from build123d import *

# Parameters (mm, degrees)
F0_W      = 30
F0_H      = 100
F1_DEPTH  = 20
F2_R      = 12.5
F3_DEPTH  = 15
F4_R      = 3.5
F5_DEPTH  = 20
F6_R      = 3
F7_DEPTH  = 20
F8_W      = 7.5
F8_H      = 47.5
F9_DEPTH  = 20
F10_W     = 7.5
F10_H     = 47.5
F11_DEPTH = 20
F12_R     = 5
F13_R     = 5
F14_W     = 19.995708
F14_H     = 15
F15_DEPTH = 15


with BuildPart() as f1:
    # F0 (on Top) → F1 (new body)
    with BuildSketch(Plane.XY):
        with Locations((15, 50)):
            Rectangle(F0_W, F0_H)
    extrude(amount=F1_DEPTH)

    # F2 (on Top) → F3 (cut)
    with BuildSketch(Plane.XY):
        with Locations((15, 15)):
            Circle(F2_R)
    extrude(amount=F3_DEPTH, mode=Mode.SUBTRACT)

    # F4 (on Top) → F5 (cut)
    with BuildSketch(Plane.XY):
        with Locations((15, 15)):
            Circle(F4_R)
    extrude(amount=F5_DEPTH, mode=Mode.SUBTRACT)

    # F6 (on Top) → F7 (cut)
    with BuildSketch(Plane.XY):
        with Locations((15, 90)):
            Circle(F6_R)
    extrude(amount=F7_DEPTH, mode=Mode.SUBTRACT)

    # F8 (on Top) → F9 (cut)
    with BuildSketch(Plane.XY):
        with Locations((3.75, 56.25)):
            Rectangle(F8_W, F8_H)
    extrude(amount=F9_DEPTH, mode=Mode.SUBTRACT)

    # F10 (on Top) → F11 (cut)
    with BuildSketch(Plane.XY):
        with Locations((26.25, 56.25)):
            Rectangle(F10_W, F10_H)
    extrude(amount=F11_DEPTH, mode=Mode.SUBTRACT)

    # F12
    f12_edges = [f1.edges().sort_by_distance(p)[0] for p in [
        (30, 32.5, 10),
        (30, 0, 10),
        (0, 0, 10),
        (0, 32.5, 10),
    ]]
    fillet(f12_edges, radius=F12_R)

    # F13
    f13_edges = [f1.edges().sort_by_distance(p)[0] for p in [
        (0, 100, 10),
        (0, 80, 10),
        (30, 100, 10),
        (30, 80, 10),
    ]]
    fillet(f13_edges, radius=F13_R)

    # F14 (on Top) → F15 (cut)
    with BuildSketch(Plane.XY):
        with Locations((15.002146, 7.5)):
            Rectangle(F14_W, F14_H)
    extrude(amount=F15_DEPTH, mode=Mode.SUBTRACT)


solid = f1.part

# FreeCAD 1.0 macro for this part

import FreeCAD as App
import Part
import Sketcher


def edges_at(feature, points):
    """Names of the edges that pass closest to the given points."""
    edges = feature.Shape.Edges
    near = lambda p: min(range(len(edges)), key=lambda i: edges[i].distToShape(Part.Vertex(*p))[0])
    return sorted({f"Edge{near(p) + 1}" for p in points})

doc = App.newDocument("Part")
body = doc.addObject("PartDesign::Body", "Body")

# Sketch on XY plane
sketch1 = body.newObject("Sketcher::SketchObject", "Sketch")
sketch1.AttachmentSupport = (doc.getObject("XY_Plane"), [""])
sketch1.MapMode = "FlatFace"
sketch1.addGeometry([
    Part.LineSegment(App.Vector(0, 100, 0), App.Vector(0, 0, 0)),
    Part.LineSegment(App.Vector(0, 0, 0), App.Vector(30, 0, 0)),
    Part.LineSegment(App.Vector(30, 0, 0), App.Vector(30, 100, 0)),
    Part.LineSegment(App.Vector(30, 100, 0), App.Vector(0, 100, 0)),
], False)
sketch1.addConstraint([
    Sketcher.Constraint("Coincident", 0, 2, 1, 1),
    Sketcher.Constraint("Coincident", 1, 2, 2, 1),
    Sketcher.Constraint("Coincident", 2, 2, 3, 1),
    Sketcher.Constraint("Coincident", 3, 2, 0, 1),
    Sketcher.Constraint("Vertical", 0),
    Sketcher.Constraint("Horizontal", 1),
    Sketcher.Constraint("Vertical", 2),
    Sketcher.Constraint("Horizontal", 3),
    Sketcher.Constraint("Coincident", 0, 2, -1, 1),
    Sketcher.Constraint("DistanceX", 1, 1, 1, 2, 30.0),
    Sketcher.Constraint("DistanceY", 0, 2, 0, 1, 100.0),
])
pad1 = body.newObject("PartDesign::Pad", "Pad")
pad1.Profile = sketch1
pad1.Length = 20

# Sketch on XY plane
sketch2 = body.newObject("Sketcher::SketchObject", "Sketch001")
sketch2.AttachmentSupport = (doc.getObject("XY_Plane"), [""])
sketch2.MapMode = "FlatFace"
sketch2.addGeometry(Part.Circle(App.Vector(15, 15, 0), App.Vector(0, 0, 1), 12), False)
sketch2.addConstraint([
    Sketcher.Constraint("Diameter", 0, 25.0),
    Sketcher.Constraint("DistanceX", -1, 1, 0, 3, 15.0),
    Sketcher.Constraint("DistanceY", -1, 1, 0, 3, 15.0),
])
pocket1 = body.newObject("PartDesign::Pocket", "Pocket")
pocket1.Profile = sketch2
pocket1.Length = 15
pocket1.Reversed = True

# Sketch on XY plane
sketch3 = body.newObject("Sketcher::SketchObject", "Sketch002")
sketch3.AttachmentSupport = (doc.getObject("XY_Plane"), [""])
sketch3.MapMode = "FlatFace"
sketch3.addGeometry(Part.Circle(App.Vector(15, 15, 0), App.Vector(0, 0, 1), 3.5), False)
sketch3.addConstraint([
    Sketcher.Constraint("Diameter", 0, 7.0),
    Sketcher.Constraint("DistanceX", -1, 1, 0, 3, 15.0),
    Sketcher.Constraint("DistanceY", -1, 1, 0, 3, 15.0),
])
pocket2 = body.newObject("PartDesign::Pocket", "Pocket001")
pocket2.Profile = sketch3
pocket2.Length = 20
pocket2.Reversed = True

# Sketch on XY plane
sketch4 = body.newObject("Sketcher::SketchObject", "Sketch003")
sketch4.AttachmentSupport = (doc.getObject("XY_Plane"), [""])
sketch4.MapMode = "FlatFace"
sketch4.addGeometry(Part.Circle(App.Vector(15, 90, 0), App.Vector(0, 0, 1), 3), False)
sketch4.addConstraint([
    Sketcher.Constraint("Diameter", 0, 6.0),
    Sketcher.Constraint("DistanceX", -1, 1, 0, 3, 15.0),
    Sketcher.Constraint("DistanceY", -1, 1, 0, 3, 90.0),
])
pocket3 = body.newObject("PartDesign::Pocket", "Pocket002")
pocket3.Profile = sketch4
pocket3.Length = 20
pocket3.Reversed = True

# Sketch on XY plane
sketch5 = body.newObject("Sketcher::SketchObject", "Sketch004")
sketch5.AttachmentSupport = (doc.getObject("XY_Plane"), [""])
sketch5.MapMode = "FlatFace"
sketch5.addGeometry([
    Part.LineSegment(App.Vector(0, 80, 0), App.Vector(0, 32, 0)),
    Part.LineSegment(App.Vector(0, 32, 0), App.Vector(8, 32, 0)),
    Part.LineSegment(App.Vector(8, 32, 0), App.Vector(8, 80, 0)),
    Part.LineSegment(App.Vector(8, 80, 0), App.Vector(0, 80, 0)),
], False)
sketch5.addConstraint([
    Sketcher.Constraint("Coincident", 0, 2, 1, 1),
    Sketcher.Constraint("Coincident", 1, 2, 2, 1),
    Sketcher.Constraint("Coincident", 2, 2, 3, 1),
    Sketcher.Constraint("Coincident", 3, 2, 0, 1),
    Sketcher.Constraint("Vertical", 0),
    Sketcher.Constraint("Horizontal", 1),
    Sketcher.Constraint("Vertical", 2),
    Sketcher.Constraint("Horizontal", 3),
    Sketcher.Constraint("PointOnObject", 0, 2, -2),
    Sketcher.Constraint("DistanceX", 1, 1, 1, 2, 7.5),
    Sketcher.Constraint("DistanceY", 0, 2, 0, 1, 47.5),
    Sketcher.Constraint("DistanceY", -1, 1, 2, 2, 80.0),
])
pocket4 = body.newObject("PartDesign::Pocket", "Pocket003")
pocket4.Profile = sketch5
pocket4.Length = 20
pocket4.Reversed = True

# Sketch on XY plane
sketch6 = body.newObject("Sketcher::SketchObject", "Sketch005")
sketch6.AttachmentSupport = (doc.getObject("XY_Plane"), [""])
sketch6.MapMode = "FlatFace"
sketch6.addGeometry([
    Part.LineSegment(App.Vector(22, 80, 0), App.Vector(22, 32, 0)),
    Part.LineSegment(App.Vector(22, 32, 0), App.Vector(30, 32, 0)),
    Part.LineSegment(App.Vector(30, 32, 0), App.Vector(30, 80, 0)),
    Part.LineSegment(App.Vector(30, 80, 0), App.Vector(22, 80, 0)),
], False)
sketch6.addConstraint([
    Sketcher.Constraint("Coincident", 0, 2, 1, 1),
    Sketcher.Constraint("Coincident", 1, 2, 2, 1),
    Sketcher.Constraint("Coincident", 2, 2, 3, 1),
    Sketcher.Constraint("Coincident", 3, 2, 0, 1),
    Sketcher.Constraint("Vertical", 0),
    Sketcher.Constraint("Horizontal", 1),
    Sketcher.Constraint("Vertical", 2),
    Sketcher.Constraint("Horizontal", 3),
    Sketcher.Constraint("DistanceX", 1, 1, 1, 2, 7.5),
    Sketcher.Constraint("DistanceY", 0, 2, 0, 1, 47.5),
    Sketcher.Constraint("DistanceX", -1, 1, 1, 2, 30.0),
    Sketcher.Constraint("DistanceY", -1, 1, 2, 2, 80.0),
])
pocket5 = body.newObject("PartDesign::Pocket", "Pocket004")
pocket5.Profile = sketch6
pocket5.Length = 20
pocket5.Reversed = True
doc.recompute()

fillet = body.newObject("PartDesign::Fillet", "Fillet")
fillet.Base = (pocket5, edges_at(pocket5, [
    (30, 32.5, 10),
    (30, 0, 10),
    (0, 0, 10),
    (0, 32.5, 10),
]))
fillet.Radius = 5
doc.recompute()

fillet2 = body.newObject("PartDesign::Fillet", "Fillet001")
fillet2.Base = (fillet, edges_at(fillet, [
    (0, 100, 10),
    (0, 80, 10),
    (30, 100, 10),
    (30, 80, 10),
]))
fillet2.Radius = 5

# Sketch on XY plane
sketch7 = body.newObject("Sketcher::SketchObject", "Sketch006")
sketch7.AttachmentSupport = (doc.getObject("XY_Plane"), [""])
sketch7.MapMode = "FlatFace"
sketch7.addGeometry([
    Part.LineSegment(App.Vector(5, 15, 0), App.Vector(5, 0, 0)),
    Part.LineSegment(App.Vector(5, 0, 0), App.Vector(25, 0, 0)),
    Part.LineSegment(App.Vector(25, 0, 0), App.Vector(25, 15, 0)),
    Part.LineSegment(App.Vector(25, 15, 0), App.Vector(5, 15, 0)),
], False)
sketch7.addConstraint([
    Sketcher.Constraint("Coincident", 0, 2, 1, 1),
    Sketcher.Constraint("Coincident", 1, 2, 2, 1),
    Sketcher.Constraint("Coincident", 2, 2, 3, 1),
    Sketcher.Constraint("Coincident", 3, 2, 0, 1),
    Sketcher.Constraint("Vertical", 0),
    Sketcher.Constraint("Horizontal", 1),
    Sketcher.Constraint("Vertical", 2),
    Sketcher.Constraint("Horizontal", 3),
    Sketcher.Constraint("PointOnObject", 0, 2, -1),
    Sketcher.Constraint("DistanceY", 0, 2, 0, 1, 15.0),
    Sketcher.Constraint("DistanceX", -1, 1, 1, 2, 25.0),
    Sketcher.Constraint("DistanceX", 1, 1, 1, 2, 19.995708),
])
pocket6 = body.newObject("PartDesign::Pocket", "Pocket005")
pocket6.Profile = sketch7
pocket6.Length = 15
pocket6.Reversed = True

doc.recompute()
